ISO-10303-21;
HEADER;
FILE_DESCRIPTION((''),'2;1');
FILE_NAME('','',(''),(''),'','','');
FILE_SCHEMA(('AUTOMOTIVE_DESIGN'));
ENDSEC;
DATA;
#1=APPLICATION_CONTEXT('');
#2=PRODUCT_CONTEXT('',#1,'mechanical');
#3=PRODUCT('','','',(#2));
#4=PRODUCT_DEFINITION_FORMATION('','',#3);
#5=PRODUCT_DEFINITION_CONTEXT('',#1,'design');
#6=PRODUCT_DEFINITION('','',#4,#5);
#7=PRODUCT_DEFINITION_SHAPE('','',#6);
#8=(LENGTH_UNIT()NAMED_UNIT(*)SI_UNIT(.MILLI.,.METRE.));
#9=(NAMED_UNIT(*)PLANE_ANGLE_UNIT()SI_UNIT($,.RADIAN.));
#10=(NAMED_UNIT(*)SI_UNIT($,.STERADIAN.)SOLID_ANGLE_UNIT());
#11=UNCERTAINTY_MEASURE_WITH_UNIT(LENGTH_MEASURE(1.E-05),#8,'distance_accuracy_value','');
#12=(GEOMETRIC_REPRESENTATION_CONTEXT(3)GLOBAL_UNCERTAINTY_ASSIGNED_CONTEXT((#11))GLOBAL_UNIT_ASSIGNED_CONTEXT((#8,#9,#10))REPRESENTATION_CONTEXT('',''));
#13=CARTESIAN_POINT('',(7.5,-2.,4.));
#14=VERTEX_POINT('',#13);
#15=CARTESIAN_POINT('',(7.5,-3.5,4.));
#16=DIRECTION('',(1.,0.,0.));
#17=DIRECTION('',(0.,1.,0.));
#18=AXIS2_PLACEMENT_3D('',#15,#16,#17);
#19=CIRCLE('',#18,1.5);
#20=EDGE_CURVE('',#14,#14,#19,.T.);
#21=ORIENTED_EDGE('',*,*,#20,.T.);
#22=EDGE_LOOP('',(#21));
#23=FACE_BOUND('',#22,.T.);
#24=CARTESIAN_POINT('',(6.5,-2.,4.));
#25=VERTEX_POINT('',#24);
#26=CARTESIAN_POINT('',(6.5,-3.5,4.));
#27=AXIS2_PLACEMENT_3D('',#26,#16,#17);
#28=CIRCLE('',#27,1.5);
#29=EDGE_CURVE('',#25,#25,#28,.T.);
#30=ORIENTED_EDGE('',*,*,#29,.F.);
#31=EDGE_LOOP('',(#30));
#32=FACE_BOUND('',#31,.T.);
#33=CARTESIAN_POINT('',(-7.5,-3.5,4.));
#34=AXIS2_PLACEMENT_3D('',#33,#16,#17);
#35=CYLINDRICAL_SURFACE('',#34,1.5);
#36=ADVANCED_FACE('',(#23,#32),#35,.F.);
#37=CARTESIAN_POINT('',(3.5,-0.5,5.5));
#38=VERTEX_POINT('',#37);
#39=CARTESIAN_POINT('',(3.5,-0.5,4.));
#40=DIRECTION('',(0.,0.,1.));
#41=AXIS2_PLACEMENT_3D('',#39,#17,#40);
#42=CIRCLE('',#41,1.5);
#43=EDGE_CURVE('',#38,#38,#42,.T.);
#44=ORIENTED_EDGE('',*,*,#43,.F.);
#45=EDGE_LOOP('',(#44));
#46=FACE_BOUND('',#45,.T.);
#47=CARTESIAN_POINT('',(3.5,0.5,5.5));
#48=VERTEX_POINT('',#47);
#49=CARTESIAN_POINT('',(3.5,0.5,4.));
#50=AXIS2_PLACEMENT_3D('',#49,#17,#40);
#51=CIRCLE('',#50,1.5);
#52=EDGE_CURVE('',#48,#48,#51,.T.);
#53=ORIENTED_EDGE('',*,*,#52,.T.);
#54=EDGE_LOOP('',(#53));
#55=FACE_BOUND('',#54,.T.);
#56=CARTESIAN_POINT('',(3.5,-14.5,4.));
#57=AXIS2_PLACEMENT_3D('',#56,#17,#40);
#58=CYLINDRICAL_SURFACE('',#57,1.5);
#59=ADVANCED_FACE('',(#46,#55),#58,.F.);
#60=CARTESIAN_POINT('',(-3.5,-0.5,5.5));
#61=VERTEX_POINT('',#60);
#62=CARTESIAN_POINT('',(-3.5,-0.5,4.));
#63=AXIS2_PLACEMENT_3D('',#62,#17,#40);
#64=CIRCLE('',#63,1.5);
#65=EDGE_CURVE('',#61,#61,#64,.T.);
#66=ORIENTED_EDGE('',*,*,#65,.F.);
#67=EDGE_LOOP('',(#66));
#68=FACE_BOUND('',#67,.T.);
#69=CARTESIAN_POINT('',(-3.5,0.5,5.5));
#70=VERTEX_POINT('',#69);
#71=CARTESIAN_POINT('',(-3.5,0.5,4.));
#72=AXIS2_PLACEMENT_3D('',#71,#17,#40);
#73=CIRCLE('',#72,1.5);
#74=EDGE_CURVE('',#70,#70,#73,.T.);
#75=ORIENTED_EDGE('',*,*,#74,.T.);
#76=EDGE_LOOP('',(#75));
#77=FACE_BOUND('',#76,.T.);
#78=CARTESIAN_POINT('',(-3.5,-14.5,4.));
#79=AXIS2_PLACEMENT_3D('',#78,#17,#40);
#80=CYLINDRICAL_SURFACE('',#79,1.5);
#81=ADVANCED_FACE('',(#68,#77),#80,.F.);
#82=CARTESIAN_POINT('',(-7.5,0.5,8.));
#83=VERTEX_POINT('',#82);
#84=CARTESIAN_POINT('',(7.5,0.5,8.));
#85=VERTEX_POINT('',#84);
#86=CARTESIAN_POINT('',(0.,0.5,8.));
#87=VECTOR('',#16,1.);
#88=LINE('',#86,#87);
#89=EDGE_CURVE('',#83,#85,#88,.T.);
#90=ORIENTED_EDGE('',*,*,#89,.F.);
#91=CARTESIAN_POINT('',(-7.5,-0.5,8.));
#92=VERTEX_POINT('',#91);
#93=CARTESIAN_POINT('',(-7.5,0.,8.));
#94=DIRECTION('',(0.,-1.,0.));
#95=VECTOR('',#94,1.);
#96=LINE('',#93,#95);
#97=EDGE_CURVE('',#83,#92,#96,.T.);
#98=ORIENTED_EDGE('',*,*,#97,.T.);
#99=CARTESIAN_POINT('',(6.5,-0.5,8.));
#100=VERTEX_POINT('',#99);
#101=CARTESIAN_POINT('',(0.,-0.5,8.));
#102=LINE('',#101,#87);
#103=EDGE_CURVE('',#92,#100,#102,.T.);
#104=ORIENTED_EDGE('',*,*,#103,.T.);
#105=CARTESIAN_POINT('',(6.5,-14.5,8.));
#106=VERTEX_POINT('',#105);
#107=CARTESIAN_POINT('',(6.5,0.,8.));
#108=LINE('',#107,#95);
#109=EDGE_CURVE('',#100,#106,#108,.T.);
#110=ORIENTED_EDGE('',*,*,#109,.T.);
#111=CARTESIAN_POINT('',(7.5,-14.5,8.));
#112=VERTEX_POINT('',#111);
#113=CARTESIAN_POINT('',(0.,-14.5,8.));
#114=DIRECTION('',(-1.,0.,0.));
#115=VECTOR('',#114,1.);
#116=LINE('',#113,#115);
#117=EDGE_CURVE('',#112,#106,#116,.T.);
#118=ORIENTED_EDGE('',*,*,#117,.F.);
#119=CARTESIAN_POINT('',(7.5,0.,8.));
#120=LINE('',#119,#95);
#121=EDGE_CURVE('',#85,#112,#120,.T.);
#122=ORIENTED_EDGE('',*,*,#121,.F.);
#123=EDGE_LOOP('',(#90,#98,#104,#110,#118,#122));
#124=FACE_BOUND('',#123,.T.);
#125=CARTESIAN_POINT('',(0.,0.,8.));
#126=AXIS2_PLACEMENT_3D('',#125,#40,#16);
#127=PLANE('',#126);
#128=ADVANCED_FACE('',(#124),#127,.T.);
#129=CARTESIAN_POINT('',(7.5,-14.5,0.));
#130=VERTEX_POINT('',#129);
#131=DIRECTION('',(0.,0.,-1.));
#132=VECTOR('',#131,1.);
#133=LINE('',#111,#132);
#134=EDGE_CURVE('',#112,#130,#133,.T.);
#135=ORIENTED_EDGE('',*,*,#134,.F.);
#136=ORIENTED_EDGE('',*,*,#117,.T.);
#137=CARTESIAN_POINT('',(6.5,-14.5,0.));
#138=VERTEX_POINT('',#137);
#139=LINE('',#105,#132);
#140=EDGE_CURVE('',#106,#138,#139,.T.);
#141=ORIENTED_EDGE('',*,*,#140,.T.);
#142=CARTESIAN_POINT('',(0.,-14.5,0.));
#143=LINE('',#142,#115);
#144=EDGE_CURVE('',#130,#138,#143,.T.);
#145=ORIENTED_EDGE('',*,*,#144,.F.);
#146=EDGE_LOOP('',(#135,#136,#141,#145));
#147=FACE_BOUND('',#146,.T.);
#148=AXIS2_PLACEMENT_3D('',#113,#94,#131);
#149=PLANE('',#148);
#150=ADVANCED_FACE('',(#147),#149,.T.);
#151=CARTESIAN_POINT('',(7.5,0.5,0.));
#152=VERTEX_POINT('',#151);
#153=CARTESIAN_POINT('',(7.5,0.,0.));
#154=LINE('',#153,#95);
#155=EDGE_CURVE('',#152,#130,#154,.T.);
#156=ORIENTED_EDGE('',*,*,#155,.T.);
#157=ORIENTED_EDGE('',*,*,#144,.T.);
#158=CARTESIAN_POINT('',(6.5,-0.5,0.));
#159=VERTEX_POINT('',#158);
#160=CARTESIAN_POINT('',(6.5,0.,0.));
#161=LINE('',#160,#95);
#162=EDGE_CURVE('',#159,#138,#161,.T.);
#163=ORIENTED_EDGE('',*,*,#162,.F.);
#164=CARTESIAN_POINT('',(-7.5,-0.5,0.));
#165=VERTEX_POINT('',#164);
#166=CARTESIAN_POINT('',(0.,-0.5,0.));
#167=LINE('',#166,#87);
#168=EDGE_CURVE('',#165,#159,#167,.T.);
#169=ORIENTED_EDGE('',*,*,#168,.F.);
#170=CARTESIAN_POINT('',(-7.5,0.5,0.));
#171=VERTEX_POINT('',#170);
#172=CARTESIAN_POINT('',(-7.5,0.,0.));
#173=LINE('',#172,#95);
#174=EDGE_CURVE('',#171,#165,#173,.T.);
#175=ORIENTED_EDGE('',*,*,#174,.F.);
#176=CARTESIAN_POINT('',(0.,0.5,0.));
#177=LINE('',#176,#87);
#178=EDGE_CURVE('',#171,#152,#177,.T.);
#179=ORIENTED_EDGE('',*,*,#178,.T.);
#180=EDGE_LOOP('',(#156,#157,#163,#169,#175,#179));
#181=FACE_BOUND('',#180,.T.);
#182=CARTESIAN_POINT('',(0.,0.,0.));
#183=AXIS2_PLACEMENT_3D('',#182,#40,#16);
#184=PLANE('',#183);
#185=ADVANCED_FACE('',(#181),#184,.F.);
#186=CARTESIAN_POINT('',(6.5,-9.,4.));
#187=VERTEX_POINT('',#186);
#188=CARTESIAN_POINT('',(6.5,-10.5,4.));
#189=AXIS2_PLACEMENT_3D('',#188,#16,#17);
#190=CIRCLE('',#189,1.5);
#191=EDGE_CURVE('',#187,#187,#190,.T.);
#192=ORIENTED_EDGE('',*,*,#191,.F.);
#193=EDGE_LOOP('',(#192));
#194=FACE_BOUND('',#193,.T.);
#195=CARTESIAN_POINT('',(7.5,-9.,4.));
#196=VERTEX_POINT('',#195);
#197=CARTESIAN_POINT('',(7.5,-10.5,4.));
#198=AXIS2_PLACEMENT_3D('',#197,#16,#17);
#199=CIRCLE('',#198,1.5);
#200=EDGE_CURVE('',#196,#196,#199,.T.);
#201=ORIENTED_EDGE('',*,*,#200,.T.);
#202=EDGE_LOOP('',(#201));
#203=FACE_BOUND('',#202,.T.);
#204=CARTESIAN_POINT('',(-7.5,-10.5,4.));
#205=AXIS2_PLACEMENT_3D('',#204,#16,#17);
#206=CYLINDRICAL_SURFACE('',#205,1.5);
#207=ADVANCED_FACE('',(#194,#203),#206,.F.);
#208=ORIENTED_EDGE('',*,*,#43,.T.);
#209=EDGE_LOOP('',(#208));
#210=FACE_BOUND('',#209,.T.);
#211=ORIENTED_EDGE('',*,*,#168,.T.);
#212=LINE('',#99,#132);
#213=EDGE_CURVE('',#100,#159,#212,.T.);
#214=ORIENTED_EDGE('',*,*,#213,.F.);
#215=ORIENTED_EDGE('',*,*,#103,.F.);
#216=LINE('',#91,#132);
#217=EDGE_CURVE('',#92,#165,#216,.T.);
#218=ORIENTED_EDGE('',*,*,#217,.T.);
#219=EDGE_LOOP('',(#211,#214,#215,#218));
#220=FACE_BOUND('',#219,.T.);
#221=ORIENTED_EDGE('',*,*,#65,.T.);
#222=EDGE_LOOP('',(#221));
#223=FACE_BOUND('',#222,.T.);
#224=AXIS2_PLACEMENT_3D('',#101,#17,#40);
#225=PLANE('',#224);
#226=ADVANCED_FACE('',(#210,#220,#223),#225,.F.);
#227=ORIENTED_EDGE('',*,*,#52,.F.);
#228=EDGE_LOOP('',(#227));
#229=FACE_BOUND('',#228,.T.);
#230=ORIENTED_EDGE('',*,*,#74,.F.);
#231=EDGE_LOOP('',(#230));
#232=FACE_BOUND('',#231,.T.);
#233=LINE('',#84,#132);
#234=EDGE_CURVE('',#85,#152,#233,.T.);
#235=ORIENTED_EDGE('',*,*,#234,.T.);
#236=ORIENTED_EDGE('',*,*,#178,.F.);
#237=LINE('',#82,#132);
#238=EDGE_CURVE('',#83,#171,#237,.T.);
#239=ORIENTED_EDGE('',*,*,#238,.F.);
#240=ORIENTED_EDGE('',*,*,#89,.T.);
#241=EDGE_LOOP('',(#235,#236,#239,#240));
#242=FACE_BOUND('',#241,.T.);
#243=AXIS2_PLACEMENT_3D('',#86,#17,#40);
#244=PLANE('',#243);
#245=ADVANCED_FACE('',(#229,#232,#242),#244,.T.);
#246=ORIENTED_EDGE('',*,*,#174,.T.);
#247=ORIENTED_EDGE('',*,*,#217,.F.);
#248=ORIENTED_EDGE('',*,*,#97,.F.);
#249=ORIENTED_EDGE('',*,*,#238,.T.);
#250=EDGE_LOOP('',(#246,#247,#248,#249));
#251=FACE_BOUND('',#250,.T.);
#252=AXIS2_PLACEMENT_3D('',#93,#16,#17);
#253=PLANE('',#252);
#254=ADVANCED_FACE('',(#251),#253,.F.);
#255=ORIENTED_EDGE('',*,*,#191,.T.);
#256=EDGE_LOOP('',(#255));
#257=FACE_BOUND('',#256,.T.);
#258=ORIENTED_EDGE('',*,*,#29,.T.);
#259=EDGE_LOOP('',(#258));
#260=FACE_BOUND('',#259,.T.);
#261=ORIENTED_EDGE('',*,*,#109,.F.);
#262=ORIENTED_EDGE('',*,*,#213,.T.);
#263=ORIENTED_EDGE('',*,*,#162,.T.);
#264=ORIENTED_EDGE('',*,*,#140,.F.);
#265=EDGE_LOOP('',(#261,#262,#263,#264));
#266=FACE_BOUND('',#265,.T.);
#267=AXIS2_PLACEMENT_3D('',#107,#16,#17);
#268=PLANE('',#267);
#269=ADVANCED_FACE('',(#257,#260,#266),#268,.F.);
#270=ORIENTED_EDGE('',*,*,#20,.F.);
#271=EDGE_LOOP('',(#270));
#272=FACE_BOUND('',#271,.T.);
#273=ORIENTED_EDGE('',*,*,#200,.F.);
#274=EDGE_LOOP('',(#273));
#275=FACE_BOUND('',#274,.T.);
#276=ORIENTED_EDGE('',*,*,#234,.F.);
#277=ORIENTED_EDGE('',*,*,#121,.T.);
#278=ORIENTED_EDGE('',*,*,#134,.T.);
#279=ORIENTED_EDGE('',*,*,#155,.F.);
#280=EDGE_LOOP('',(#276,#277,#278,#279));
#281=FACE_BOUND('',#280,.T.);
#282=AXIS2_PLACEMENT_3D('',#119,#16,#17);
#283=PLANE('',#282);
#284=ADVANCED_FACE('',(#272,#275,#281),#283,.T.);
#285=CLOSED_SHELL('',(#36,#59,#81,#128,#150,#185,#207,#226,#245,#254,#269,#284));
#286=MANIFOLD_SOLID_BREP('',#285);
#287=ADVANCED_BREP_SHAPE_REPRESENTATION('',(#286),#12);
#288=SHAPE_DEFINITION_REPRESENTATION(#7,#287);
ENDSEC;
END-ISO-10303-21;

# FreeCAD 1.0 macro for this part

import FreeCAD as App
import Part
import Sketcher

doc = App.newDocument("Part")
body = doc.addObject("PartDesign::Body", "Body")

sketch1 = body.newObject("Sketcher::SketchObject", "Sketch")
sketch1.AttachmentSupport = (doc.getObject("XY_Plane"), [""])
sketch1.MapMode = "FlatFace"
sketch1.addGeometry([
    Part.LineSegment(App.Vector(-7.5, 0.5, 0), App.Vector(-7.5, -0.5, 0)),
    Part.LineSegment(App.Vector(-7.5, -0.5, 0), App.Vector(6.5, -0.5, 0)),
    Part.LineSegment(App.Vector(6.5, -0.5, 0), App.Vector(6.5, -14.5, 0)),
    Part.LineSegment(App.Vector(6.5, -14.5, 0), App.Vector(7.5, -14.5, 0)),
    Part.LineSegment(App.Vector(7.5, -14.5, 0), App.Vector(7.5, 0.5, 0)),
    Part.LineSegment(App.Vector(7.5, 0.5, 0), App.Vector(-7.5, 0.5, 0)),
], False)
sketch1.addConstraint([
    Sketcher.Constraint("Coincident", 0, 2, 1, 1),
    Sketcher.Constraint("Coincident", 1, 2, 2, 1),
    Sketcher.Constraint("Coincident", 2, 2, 3, 1),
    Sketcher.Constraint("Coincident", 3, 2, 4, 1),
    Sketcher.Constraint("Coincident", 4, 2, 5, 1),
    Sketcher.Constraint("Coincident", 5, 2, 0, 1),
    Sketcher.Constraint("Vertical", 0),
    Sketcher.Constraint("Horizontal", 1),
    Sketcher.Constraint("Vertical", 2),
    Sketcher.Constraint("Horizontal", 3),
    Sketcher.Constraint("Vertical", 4),
    Sketcher.Constraint("Horizontal", 5),
    Sketcher.Constraint("Symmetric", 0, 2, 4, 2, -1, 1),
    Sketcher.Constraint("Equal", 3, 0),
    Sketcher.Constraint("Equal", 1, 2),
    Sketcher.Constraint("DistanceX", 1, 1, 1, 2, 14.0),
    Sketcher.Constraint("DistanceX", 3, 1, 3, 2, 1.0),
])
pad1 = body.newObject("PartDesign::Pad", "Pad")
pad1.Profile = sketch1
pad1.Length = 8

sketch2 = body.newObject("Sketcher::SketchObject", "Sketch001")
sketch2.AttachmentSupport = (doc.getObject("XZ_Plane"), [""])
sketch2.MapMode = "FlatFace"
sketch2.AttachmentOffset = App.Placement(App.Vector(0, 0, -0.5), App.Rotation())
sketch2.addGeometry([
    Part.Circle(App.Vector(-3.5, 4, 0), App.Vector(0, 0, 1), 1.5),
    Part.Circle(App.Vector(3.5, 4, 0), App.Vector(0, 0, 1), 1.5),
], False)
sketch2.addConstraint([
    Sketcher.Constraint("Equal", 0, 1),
    Sketcher.Constraint("Symmetric", 0, 3, 1, 3, -2),
    Sketcher.Constraint("Diameter", 0, 3.0),
    Sketcher.Constraint("DistanceY", -1, 1, 0, 3, 4.0),
    Sketcher.Constraint("DistanceX", 0, 3, 1, 3, 7.0),
])
pocket1 = body.newObject("PartDesign::Pocket", "Pocket")
pocket1.Profile = sketch2
pocket1.Type = "ThroughAll"
pocket1.Reversed = True

sketch3 = body.newObject("Sketcher::SketchObject", "Sketch002")
sketch3.AttachmentSupport = (doc.getObject("YZ_Plane"), [""])
sketch3.MapMode = "FlatFace"
sketch3.AttachmentOffset = App.Placement(App.Vector(0, 0, 7.5), App.Rotation())
sketch3.addGeometry([
    Part.Circle(App.Vector(-3.5, 4, 0), App.Vector(0, 0, 1), 1.5),
    Part.Circle(App.Vector(-10.5, 4, 0), App.Vector(0, 0, 1), 1.5),
], False)
sketch3.addConstraint([
    Sketcher.Constraint("Equal", 0, 1),
    Sketcher.Constraint("Horizontal", 0, 3, 1, 3),
    Sketcher.Constraint("Diameter", 0, 3.0),
    Sketcher.Constraint("DistanceY", -1, 1, 0, 3, 4.0),
    Sketcher.Constraint("DistanceX", 1, 3, 0, 3, 7.0),
    Sketcher.Constraint("DistanceX", 0, 3, -1, 1, 3.5),
])
pocket2 = body.newObject("PartDesign::Pocket", "Pocket001")
pocket2.Profile = sketch3
pocket2.Type = "ThroughAll"

doc.recompute()
